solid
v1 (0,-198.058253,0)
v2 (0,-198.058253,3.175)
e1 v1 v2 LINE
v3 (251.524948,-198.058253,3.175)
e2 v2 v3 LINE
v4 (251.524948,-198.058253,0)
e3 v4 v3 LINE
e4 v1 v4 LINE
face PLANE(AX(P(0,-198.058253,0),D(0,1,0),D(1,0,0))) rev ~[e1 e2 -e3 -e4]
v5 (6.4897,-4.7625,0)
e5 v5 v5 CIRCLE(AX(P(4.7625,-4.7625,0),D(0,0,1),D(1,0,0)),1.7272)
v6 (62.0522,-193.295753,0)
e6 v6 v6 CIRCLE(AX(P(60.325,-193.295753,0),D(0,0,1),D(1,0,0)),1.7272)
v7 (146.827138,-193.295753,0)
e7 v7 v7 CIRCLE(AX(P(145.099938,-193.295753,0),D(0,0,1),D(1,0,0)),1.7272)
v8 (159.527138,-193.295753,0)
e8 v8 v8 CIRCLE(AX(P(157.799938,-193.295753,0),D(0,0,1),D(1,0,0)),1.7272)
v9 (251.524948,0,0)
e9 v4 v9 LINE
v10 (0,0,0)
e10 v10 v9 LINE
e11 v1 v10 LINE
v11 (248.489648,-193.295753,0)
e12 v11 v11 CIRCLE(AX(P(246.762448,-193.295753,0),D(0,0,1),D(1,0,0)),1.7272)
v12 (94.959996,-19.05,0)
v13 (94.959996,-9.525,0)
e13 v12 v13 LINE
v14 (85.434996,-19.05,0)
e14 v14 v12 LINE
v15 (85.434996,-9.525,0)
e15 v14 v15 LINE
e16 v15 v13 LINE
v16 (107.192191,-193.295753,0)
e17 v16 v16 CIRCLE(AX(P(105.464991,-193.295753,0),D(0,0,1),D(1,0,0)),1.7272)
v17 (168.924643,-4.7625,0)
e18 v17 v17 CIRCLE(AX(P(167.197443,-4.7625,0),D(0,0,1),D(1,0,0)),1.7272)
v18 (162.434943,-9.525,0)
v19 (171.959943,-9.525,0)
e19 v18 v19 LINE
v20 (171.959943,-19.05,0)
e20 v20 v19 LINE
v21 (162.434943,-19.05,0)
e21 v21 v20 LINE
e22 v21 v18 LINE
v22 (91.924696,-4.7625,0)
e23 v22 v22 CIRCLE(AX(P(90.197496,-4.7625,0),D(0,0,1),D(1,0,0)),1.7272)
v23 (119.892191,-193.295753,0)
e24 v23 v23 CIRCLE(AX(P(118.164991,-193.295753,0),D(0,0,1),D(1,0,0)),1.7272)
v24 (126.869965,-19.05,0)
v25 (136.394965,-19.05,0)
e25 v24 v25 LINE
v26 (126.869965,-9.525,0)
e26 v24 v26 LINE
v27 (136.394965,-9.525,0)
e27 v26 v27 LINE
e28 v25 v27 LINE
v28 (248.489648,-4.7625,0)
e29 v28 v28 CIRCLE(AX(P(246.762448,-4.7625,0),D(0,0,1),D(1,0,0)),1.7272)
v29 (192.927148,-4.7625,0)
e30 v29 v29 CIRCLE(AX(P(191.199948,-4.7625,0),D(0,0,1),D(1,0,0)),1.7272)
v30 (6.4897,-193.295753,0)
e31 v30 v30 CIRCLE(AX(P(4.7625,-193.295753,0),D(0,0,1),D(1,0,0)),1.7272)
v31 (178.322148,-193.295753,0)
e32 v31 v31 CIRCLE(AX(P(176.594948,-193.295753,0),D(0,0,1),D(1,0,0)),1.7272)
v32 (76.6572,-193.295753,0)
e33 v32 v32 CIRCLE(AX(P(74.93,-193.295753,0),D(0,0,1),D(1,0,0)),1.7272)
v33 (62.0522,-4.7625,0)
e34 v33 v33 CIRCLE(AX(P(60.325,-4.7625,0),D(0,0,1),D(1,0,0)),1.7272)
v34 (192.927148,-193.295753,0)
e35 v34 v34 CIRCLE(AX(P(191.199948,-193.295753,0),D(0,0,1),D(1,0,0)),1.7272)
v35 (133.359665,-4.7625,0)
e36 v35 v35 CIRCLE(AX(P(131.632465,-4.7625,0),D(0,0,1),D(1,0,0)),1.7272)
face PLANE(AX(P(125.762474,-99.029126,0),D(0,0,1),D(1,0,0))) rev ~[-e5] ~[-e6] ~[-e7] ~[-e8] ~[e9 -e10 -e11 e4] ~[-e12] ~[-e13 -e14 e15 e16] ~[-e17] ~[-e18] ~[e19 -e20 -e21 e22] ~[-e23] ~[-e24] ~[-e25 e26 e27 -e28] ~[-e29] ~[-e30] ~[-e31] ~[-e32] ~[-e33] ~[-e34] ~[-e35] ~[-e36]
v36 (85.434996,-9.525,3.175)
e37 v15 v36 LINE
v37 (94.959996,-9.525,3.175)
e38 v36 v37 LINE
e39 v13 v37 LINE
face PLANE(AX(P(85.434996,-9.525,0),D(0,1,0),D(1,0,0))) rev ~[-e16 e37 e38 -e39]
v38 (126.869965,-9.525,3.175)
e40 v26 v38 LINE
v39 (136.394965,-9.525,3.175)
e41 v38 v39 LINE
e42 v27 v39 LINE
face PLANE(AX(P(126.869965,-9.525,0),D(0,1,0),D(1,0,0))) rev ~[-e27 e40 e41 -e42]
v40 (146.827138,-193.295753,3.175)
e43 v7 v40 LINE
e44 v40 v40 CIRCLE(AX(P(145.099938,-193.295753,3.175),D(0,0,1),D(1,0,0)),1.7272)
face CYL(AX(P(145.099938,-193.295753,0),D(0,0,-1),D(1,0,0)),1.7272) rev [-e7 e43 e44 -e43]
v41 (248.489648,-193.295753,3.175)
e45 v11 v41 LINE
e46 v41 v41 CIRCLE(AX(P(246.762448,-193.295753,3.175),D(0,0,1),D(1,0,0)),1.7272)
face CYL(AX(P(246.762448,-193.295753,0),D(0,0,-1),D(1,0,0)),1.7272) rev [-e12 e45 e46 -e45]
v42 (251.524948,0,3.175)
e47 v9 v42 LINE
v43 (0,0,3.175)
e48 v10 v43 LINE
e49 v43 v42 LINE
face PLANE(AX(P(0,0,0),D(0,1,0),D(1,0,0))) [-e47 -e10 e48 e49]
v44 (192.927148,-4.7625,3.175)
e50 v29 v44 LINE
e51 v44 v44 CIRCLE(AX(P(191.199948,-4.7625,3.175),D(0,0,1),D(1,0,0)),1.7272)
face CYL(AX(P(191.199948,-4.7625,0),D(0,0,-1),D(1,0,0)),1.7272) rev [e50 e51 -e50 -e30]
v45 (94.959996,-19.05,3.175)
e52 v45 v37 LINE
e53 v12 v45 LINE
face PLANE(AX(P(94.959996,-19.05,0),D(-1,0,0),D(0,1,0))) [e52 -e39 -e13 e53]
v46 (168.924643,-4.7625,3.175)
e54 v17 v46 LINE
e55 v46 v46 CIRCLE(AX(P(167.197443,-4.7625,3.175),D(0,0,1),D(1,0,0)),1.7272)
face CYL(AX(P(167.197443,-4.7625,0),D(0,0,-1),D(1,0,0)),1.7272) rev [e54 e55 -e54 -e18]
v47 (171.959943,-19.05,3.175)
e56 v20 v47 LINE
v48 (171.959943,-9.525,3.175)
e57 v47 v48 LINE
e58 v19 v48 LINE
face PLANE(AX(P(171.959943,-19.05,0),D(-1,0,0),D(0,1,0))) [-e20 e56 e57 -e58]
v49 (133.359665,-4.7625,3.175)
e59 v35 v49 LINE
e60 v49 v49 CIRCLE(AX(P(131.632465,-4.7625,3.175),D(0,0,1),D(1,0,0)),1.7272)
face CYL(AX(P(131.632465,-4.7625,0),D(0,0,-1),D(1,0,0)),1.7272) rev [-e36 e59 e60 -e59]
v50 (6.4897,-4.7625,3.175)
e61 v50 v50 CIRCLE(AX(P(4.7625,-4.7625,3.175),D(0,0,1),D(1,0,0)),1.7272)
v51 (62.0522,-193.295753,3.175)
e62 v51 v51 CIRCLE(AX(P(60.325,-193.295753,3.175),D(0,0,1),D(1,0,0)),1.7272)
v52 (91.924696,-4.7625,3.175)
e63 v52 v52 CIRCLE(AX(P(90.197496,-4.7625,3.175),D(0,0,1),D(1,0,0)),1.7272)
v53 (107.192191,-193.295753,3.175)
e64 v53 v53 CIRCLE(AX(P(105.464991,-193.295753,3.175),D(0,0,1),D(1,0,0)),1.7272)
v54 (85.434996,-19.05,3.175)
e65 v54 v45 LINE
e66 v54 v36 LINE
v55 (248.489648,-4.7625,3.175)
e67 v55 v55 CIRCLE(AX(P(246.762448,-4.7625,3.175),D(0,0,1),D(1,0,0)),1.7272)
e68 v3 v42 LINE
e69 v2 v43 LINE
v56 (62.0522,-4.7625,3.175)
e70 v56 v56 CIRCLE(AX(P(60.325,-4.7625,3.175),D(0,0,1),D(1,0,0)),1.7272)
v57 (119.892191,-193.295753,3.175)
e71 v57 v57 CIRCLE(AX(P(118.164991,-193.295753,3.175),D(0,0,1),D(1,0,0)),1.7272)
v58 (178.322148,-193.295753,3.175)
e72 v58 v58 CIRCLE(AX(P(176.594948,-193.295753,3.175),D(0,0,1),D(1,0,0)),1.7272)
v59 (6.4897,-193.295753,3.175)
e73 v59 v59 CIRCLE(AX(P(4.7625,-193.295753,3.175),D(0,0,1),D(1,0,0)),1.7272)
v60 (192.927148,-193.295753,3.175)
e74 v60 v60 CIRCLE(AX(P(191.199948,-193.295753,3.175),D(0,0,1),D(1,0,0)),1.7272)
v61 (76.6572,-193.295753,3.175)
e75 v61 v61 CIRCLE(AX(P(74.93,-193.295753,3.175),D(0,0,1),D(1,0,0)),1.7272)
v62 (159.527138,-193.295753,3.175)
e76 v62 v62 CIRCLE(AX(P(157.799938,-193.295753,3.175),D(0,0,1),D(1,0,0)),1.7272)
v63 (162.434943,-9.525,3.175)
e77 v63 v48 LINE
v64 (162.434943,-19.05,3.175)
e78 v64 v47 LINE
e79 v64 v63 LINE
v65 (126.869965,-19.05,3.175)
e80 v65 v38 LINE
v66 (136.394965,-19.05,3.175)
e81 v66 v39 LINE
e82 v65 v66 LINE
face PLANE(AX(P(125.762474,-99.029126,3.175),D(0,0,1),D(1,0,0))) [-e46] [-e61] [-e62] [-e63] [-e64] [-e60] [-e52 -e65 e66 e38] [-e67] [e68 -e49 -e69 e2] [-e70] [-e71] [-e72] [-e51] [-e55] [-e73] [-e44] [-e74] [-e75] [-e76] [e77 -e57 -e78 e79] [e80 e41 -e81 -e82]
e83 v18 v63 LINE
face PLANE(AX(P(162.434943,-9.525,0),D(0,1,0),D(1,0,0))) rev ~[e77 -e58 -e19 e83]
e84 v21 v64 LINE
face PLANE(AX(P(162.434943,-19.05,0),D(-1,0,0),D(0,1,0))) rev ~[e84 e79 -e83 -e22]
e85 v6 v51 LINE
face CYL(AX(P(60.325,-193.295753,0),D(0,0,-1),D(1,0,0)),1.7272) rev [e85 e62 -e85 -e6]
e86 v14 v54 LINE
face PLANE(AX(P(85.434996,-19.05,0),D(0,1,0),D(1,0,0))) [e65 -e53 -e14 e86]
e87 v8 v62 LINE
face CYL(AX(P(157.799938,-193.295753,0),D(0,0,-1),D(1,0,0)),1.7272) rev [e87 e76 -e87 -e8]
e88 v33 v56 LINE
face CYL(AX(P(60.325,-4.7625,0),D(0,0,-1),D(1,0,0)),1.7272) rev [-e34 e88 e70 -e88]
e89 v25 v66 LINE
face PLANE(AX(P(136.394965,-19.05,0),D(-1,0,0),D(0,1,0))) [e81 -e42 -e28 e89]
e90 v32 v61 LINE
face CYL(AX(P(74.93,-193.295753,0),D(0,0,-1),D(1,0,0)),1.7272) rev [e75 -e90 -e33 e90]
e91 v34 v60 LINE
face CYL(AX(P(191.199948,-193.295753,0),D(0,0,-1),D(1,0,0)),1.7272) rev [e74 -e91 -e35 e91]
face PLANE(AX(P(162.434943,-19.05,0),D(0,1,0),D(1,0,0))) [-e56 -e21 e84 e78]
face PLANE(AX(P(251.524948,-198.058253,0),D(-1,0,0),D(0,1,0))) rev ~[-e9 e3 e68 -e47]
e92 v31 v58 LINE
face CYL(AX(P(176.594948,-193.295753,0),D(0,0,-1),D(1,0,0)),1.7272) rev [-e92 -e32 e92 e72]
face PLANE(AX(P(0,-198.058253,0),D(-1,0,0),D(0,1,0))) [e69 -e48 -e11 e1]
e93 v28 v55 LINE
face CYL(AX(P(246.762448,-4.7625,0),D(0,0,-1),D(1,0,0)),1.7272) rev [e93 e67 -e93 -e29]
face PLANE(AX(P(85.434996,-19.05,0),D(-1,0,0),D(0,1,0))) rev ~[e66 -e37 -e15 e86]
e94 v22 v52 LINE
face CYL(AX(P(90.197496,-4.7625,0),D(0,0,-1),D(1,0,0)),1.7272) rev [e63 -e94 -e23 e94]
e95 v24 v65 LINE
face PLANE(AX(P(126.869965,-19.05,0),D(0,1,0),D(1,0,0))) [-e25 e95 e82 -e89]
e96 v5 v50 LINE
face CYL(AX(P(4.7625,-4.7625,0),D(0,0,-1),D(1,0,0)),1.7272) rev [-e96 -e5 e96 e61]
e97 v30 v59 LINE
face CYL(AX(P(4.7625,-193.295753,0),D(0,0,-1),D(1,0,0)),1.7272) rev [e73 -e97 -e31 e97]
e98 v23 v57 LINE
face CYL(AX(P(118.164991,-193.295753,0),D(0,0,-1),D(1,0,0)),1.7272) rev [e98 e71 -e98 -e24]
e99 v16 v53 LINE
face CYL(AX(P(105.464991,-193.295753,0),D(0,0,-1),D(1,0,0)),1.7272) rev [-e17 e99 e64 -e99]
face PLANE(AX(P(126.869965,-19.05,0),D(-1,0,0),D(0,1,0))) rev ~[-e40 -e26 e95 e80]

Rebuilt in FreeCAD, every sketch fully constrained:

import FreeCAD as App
import Part
import Sketcher
from FreeCAD import Vector
Q = App.Units.Quantity

doc = App.newDocument("Part")
body = doc.addObject("PartDesign::Body", "Body")

# Sketch on XY plane
sketch1 = doc.addObject("Sketcher::SketchObject", "Sketch")
body.addObject(sketch1)
sketch1.AttachmentSupport = (doc.XY_Plane, [""])
sketch1.MapMode = "FlatFace"
sketch1.addGeometry(Part.LineSegment(Vector(0, 0, 0), Vector(0, -198.1, 0)), False)
sketch1.addGeometry(Part.LineSegment(Vector(0, -198.1, 0), Vector(251.5, -198.1, 0)), False)
sketch1.addGeometry(Part.LineSegment(Vector(251.5, -198.1, 0), Vector(251.5, 0, 0)), False)
sketch1.addGeometry(Part.LineSegment(Vector(251.5, 0, 0), Vector(0, 0, 0)), False)
sketch1.addGeometry(Part.Circle(Vector(4.8, -193.3, 0), Vector(0, 0, 1), 1.7), False)
sketch1.addGeometry(Part.Circle(Vector(60.3, -193.3, 0), Vector(0, 0, 1), 1.7), False)
sketch1.addGeometry(Part.Circle(Vector(74.9, -193.3, 0), Vector(0, 0, 1), 1.7), False)
sketch1.addGeometry(Part.Circle(Vector(105.5, -193.3, 0), Vector(0, 0, 1), 1.7), False)
sketch1.addGeometry(Part.Circle(Vector(118.2, -193.3, 0), Vector(0, 0, 1), 1.7), False)
sketch1.addGeometry(Part.Circle(Vector(145.1, -193.3, 0), Vector(0, 0, 1), 1.7), False)
sketch1.addGeometry(Part.Circle(Vector(157.8, -193.3, 0), Vector(0, 0, 1), 1.7), False)
sketch1.addGeometry(Part.Circle(Vector(176.6, -193.3, 0), Vector(0, 0, 1), 1.7), False)
sketch1.addGeometry(Part.Circle(Vector(191.2, -193.3, 0), Vector(0, 0, 1), 1.7), False)
sketch1.addGeometry(Part.Circle(Vector(246.8, -193.3, 0), Vector(0, 0, 1), 1.7), False)
sketch1.addGeometry(Part.Circle(Vector(4.8, -4.8, 0), Vector(0, 0, 1), 1.7), False)
sketch1.addGeometry(Part.Circle(Vector(60.3, -4.8, 0), Vector(0, 0, 1), 1.7), False)
sketch1.addGeometry(Part.LineSegment(Vector(95, -19.1, 0), Vector(85.4, -19.1, 0)), False)
sketch1.addGeometry(Part.LineSegment(Vector(85.4, -19.1, 0), Vector(85.4, -9.5, 0)), False)
sketch1.addGeometry(Part.LineSegment(Vector(85.4, -9.5, 0), Vector(95, -9.5, 0)), False)
sketch1.addGeometry(Part.LineSegment(Vector(95, -9.5, 0), Vector(95, -19.1, 0)), False)
sketch1.addGeometry(Part.Circle(Vector(90.2, -4.8, 0), Vector(0, 0, 1), 1.7), False)
sketch1.addGeometry(Part.LineSegment(Vector(136.4, -19.1, 0), Vector(126.9, -19.1, 0)), False)
sketch1.addGeometry(Part.LineSegment(Vector(126.9, -19.1, 0), Vector(126.9, -9.5, 0)), False)
sketch1.addGeometry(Part.LineSegment(Vector(126.9, -9.5, 0), Vector(136.4, -9.5, 0)), False)
sketch1.addGeometry(Part.LineSegment(Vector(136.4, -9.5, 0), Vector(136.4, -19.1, 0)), False)
sketch1.addGeometry(Part.Circle(Vector(131.6, -4.8, 0), Vector(0, 0, 1), 1.7), False)
sketch1.addGeometry(Part.LineSegment(Vector(172, -19.1, 0), Vector(162.4, -19.1, 0)), False)
sketch1.addGeometry(Part.LineSegment(Vector(162.4, -19.1, 0), Vector(162.4, -9.5, 0)), False)
sketch1.addGeometry(Part.LineSegment(Vector(162.4, -9.5, 0), Vector(172, -9.5, 0)), False)
sketch1.addGeometry(Part.LineSegment(Vector(172, -9.5, 0), Vector(172, -19.1, 0)), False)
sketch1.addGeometry(Part.Circle(Vector(167.2, -4.8, 0), Vector(0, 0, 1), 1.7), False)
sketch1.addGeometry(Part.Circle(Vector(191.2, -4.8, 0), Vector(0, 0, 1), 1.7), False)
sketch1.addGeometry(Part.Circle(Vector(246.8, -4.8, 0), Vector(0, 0, 1), 1.7), False)
sketch1.addConstraint(Sketcher.Constraint("Coincident", 0, 2, 1, 1))
sketch1.addConstraint(Sketcher.Constraint("Coincident", 1, 2, 2, 1))
sketch1.addConstraint(Sketcher.Constraint("Coincident", 2, 2, 3, 1))
sketch1.addConstraint(Sketcher.Constraint("Coincident", 3, 2, 0, 1))
sketch1.addConstraint(Sketcher.Constraint("Coincident", 16, 2, 17, 1))
sketch1.addConstraint(Sketcher.Constraint("Coincident", 17, 2, 18, 1))
sketch1.addConstraint(Sketcher.Constraint("Coincident", 18, 2, 19, 1))
sketch1.addConstraint(Sketcher.Constraint("Coincident", 19, 2, 16, 1))
sketch1.addConstraint(Sketcher.Constraint("Coincident", 21, 2, 22, 1))
sketch1.addConstraint(Sketcher.Constraint("Coincident", 22, 2, 23, 1))
sketch1.addConstraint(Sketcher.Constraint("Coincident", 23, 2, 24, 1))
sketch1.addConstraint(Sketcher.Constraint("Coincident", 24, 2, 21, 1))
sketch1.addConstraint(Sketcher.Constraint("Coincident", 26, 2, 27, 1))
sketch1.addConstraint(Sketcher.Constraint("Coincident", 27, 2, 28, 1))
sketch1.addConstraint(Sketcher.Constraint("Coincident", 28, 2, 29, 1))
sketch1.addConstraint(Sketcher.Constraint("Coincident", 29, 2, 26, 1))
sketch1.addConstraint(Sketcher.Constraint("Vertical", 0))
sketch1.addConstraint(Sketcher.Constraint("Horizontal", 1))
sketch1.addConstraint(Sketcher.Constraint("Vertical", 2))
sketch1.addConstraint(Sketcher.Constraint("Horizontal", 3))
sketch1.addConstraint(Sketcher.Constraint("Horizontal", 16))
sketch1.addConstraint(Sketcher.Constraint("Vertical", 17))
sketch1.addConstraint(Sketcher.Constraint("Horizontal", 18))
sketch1.addConstraint(Sketcher.Constraint("Vertical", 19))
sketch1.addConstraint(Sketcher.Constraint("Horizontal", 21))
sketch1.addConstraint(Sketcher.Constraint("Vertical", 22))
sketch1.addConstraint(Sketcher.Constraint("Horizontal", 23))
sketch1.addConstraint(Sketcher.Constraint("Vertical", 24))
sketch1.addConstraint(Sketcher.Constraint("Horizontal", 26))
sketch1.addConstraint(Sketcher.Constraint("Vertical", 27))
sketch1.addConstraint(Sketcher.Constraint("Horizontal", 28))
sketch1.addConstraint(Sketcher.Constraint("Vertical", 29))
sketch1.addConstraint(Sketcher.Constraint("Coincident", 3, 2, -1, 1))
sketch1.addConstraint(Sketcher.Constraint("Equal", 4, 5))
sketch1.addConstraint(Sketcher.Constraint("Equal", 5, 6))
sketch1.addConstraint(Sketcher.Constraint("Equal", 6, 7))
sketch1.addConstraint(Sketcher.Constraint("Equal", 7, 8))
sketch1.addConstraint(Sketcher.Constraint("Equal", 8, 9))
sketch1.addConstraint(Sketcher.Constraint("Equal", 9, 10))
sketch1.addConstraint(Sketcher.Constraint("Equal", 10, 11))
sketch1.addConstraint(Sketcher.Constraint("Equal", 11, 12))
sketch1.addConstraint(Sketcher.Constraint("Equal", 12, 13))
sketch1.addConstraint(Sketcher.Constraint("Equal", 13, 14))
sketch1.addConstraint(Sketcher.Constraint("Equal", 14, 15))
sketch1.addConstraint(Sketcher.Constraint("Equal", 15, 20))
sketch1.addConstraint(Sketcher.Constraint("Equal", 20, 25))
sketch1.addConstraint(Sketcher.Constraint("Equal", 25, 30))
sketch1.addConstraint(Sketcher.Constraint("Equal", 30, 31))
sketch1.addConstraint(Sketcher.Constraint("Equal", 31, 32))
sketch1.addConstraint(Sketcher.Constraint("Horizontal", 4, 3, 5, 3))
sketch1.addConstraint(Sketcher.Constraint("Horizontal", 5, 3, 6, 3))
sketch1.addConstraint(Sketcher.Constraint("Horizontal", 6, 3, 7, 3))
sketch1.addConstraint(Sketcher.Constraint("Horizontal", 7, 3, 8, 3))
sketch1.addConstraint(Sketcher.Constraint("Horizontal", 8, 3, 9, 3))
sketch1.addConstraint(Sketcher.Constraint("Horizontal", 9, 3, 10, 3))
sketch1.addConstraint(Sketcher.Constraint("Horizontal", 10, 3, 11, 3))
sketch1.addConstraint(Sketcher.Constraint("Horizontal", 11, 3, 12, 3))
sketch1.addConstraint(Sketcher.Constraint("Horizontal", 12, 3, 13, 3))
sketch1.addConstraint(Sketcher.Constraint("Horizontal", 14, 3, 15, 3))
sketch1.addConstraint(Sketcher.Constraint("Horizontal", 15, 3, 20, 3))
sketch1.addConstraint(Sketcher.Constraint("Horizontal", 20, 3, 25, 3))
sketch1.addConstraint(Sketcher.Constraint("Horizontal", 25, 3, 30, 3))
sketch1.addConstraint(Sketcher.Constraint("Horizontal", 30, 3, 31, 3))
sketch1.addConstraint(Sketcher.Constraint("Horizontal", 31, 3, 32, 3))
sketch1.addConstraint(Sketcher.Constraint("Horizontal", 19, 2, 21, 2))
sketch1.addConstraint(Sketcher.Constraint("Horizontal", 18, 2, 22, 2))
sketch1.addConstraint(Sketcher.Constraint("Horizontal", 24, 2, 26, 2))
sketch1.addConstraint(Sketcher.Constraint("Horizontal", 23, 2, 27, 2))
sketch1.addConstraint(Sketcher.Constraint("Vertical", 4, 3, 14, 3))
sketch1.addConstraint(Sketcher.Constraint("Vertical", 5, 3, 15, 3))
sketch1.addConstraint(Sketcher.Constraint("Vertical", 12, 3, 31, 3))
sketch1.addConstraint(Sketcher.Constraint("Vertical", 13, 3, 32, 3))
sketch1.addConstraint(Sketcher.Constraint("Equal", 18, 21))
sketch1.addConstraint(Sketcher.Constraint("Equal", 23, 26))
sketch1.addConstraint(Sketcher.Constraint("Equal", 28, 17))
sketch1.addConstraint(Sketcher.Constraint("Diameter", 4, Q("0.136 in")))
sketch1.addConstraint(Sketcher.Constraint("DistanceX", 7, 3, 8, 3, Q("0.5 in")))
sketch1.addConstraint(Sketcher.Constraint("DistanceX", 9, 3, 10, 3, Q("0.5 in")))
sketch1.addConstraint(Sketcher.Constraint("DistanceX", 16, 2, 16, 1, Q("0.375 in")))
sketch1.addConstraint(Sketcher.Constraint("DistanceX", -1, 1, 6, 3, Q("2.95 in")))
sketch1.addConstraint(Sketcher.Constraint("DistanceY", 16, 2, -1, 1, Q("0.75 in")))
sketch1.addConstraint(Sketcher.Constraint("DistanceX", 11, 3, 1, 2, Q("2.95 in")))
sketch1.addConstraint(Sketcher.Constraint("DistanceX", -1, 1, 4, 3, Q("0.1875 in")))
sketch1.addConstraint(Sketcher.Constraint("DistanceX", -1, 1, 5, 3, Q("2.375 in")))
sketch1.addConstraint(Sketcher.Constraint("DistanceY", 14, 3, -1, 1, Q("0.1875 in")))
sketch1.addConstraint(Sketcher.Constraint("DistanceX", 11, 3, 12, 3, Q("0.575 in")))
sketch1.addConstraint(Sketcher.Constraint("DistanceX", 12, 3, 13, 3, Q("2.1875 in")))
sketch1.addConstraint(Sketcher.Constraint("DistanceY", 0, 2, 4, 3, Q("0.1875 in")))
sketch1.addConstraint(Sketcher.Constraint("DistanceX", 16, 2, 20, 3, Q("0.1875 in")))
sketch1.addConstraint(Sketcher.Constraint("DistanceX", 21, 2, 25, 3, Q("0.1875 in")))
sketch1.addConstraint(Sketcher.Constraint("DistanceX", 26, 2, 30, 3, Q("0.1875 in")))
sketch1.addConstraint(Sketcher.Constraint("DistanceX", 1, 1, 1, 2, Q("251.524948 mm")))
sketch1.addConstraint(Sketcher.Constraint("DistanceY", 0, 2, 0, 1, Q("198.058253 mm")))
sketch1.addConstraint(Sketcher.Constraint("DistanceX", -1, 1, 7, 3, Q("105.464991 mm")))
sketch1.addConstraint(Sketcher.Constraint("DistanceX", -1, 1, 9, 3, Q("145.099938 mm")))
sketch1.addConstraint(Sketcher.Constraint("DistanceX", 20, 3, 25, 3, Q("41.434969 mm")))
sketch1.addConstraint(Sketcher.Constraint("DistanceX", 20, 3, 32, 3, Q("156.564952 mm")))
sketch1.addConstraint(Sketcher.Constraint("DistanceX", 25, 3, 26, 2, Q("30.802478 mm")))
pad1 = doc.addObject("PartDesign::Pad", "Pad")
body.addObject(pad1)
pad1.Profile = sketch1
pad1.Length = Q("0.125 in")

doc.recompute()
